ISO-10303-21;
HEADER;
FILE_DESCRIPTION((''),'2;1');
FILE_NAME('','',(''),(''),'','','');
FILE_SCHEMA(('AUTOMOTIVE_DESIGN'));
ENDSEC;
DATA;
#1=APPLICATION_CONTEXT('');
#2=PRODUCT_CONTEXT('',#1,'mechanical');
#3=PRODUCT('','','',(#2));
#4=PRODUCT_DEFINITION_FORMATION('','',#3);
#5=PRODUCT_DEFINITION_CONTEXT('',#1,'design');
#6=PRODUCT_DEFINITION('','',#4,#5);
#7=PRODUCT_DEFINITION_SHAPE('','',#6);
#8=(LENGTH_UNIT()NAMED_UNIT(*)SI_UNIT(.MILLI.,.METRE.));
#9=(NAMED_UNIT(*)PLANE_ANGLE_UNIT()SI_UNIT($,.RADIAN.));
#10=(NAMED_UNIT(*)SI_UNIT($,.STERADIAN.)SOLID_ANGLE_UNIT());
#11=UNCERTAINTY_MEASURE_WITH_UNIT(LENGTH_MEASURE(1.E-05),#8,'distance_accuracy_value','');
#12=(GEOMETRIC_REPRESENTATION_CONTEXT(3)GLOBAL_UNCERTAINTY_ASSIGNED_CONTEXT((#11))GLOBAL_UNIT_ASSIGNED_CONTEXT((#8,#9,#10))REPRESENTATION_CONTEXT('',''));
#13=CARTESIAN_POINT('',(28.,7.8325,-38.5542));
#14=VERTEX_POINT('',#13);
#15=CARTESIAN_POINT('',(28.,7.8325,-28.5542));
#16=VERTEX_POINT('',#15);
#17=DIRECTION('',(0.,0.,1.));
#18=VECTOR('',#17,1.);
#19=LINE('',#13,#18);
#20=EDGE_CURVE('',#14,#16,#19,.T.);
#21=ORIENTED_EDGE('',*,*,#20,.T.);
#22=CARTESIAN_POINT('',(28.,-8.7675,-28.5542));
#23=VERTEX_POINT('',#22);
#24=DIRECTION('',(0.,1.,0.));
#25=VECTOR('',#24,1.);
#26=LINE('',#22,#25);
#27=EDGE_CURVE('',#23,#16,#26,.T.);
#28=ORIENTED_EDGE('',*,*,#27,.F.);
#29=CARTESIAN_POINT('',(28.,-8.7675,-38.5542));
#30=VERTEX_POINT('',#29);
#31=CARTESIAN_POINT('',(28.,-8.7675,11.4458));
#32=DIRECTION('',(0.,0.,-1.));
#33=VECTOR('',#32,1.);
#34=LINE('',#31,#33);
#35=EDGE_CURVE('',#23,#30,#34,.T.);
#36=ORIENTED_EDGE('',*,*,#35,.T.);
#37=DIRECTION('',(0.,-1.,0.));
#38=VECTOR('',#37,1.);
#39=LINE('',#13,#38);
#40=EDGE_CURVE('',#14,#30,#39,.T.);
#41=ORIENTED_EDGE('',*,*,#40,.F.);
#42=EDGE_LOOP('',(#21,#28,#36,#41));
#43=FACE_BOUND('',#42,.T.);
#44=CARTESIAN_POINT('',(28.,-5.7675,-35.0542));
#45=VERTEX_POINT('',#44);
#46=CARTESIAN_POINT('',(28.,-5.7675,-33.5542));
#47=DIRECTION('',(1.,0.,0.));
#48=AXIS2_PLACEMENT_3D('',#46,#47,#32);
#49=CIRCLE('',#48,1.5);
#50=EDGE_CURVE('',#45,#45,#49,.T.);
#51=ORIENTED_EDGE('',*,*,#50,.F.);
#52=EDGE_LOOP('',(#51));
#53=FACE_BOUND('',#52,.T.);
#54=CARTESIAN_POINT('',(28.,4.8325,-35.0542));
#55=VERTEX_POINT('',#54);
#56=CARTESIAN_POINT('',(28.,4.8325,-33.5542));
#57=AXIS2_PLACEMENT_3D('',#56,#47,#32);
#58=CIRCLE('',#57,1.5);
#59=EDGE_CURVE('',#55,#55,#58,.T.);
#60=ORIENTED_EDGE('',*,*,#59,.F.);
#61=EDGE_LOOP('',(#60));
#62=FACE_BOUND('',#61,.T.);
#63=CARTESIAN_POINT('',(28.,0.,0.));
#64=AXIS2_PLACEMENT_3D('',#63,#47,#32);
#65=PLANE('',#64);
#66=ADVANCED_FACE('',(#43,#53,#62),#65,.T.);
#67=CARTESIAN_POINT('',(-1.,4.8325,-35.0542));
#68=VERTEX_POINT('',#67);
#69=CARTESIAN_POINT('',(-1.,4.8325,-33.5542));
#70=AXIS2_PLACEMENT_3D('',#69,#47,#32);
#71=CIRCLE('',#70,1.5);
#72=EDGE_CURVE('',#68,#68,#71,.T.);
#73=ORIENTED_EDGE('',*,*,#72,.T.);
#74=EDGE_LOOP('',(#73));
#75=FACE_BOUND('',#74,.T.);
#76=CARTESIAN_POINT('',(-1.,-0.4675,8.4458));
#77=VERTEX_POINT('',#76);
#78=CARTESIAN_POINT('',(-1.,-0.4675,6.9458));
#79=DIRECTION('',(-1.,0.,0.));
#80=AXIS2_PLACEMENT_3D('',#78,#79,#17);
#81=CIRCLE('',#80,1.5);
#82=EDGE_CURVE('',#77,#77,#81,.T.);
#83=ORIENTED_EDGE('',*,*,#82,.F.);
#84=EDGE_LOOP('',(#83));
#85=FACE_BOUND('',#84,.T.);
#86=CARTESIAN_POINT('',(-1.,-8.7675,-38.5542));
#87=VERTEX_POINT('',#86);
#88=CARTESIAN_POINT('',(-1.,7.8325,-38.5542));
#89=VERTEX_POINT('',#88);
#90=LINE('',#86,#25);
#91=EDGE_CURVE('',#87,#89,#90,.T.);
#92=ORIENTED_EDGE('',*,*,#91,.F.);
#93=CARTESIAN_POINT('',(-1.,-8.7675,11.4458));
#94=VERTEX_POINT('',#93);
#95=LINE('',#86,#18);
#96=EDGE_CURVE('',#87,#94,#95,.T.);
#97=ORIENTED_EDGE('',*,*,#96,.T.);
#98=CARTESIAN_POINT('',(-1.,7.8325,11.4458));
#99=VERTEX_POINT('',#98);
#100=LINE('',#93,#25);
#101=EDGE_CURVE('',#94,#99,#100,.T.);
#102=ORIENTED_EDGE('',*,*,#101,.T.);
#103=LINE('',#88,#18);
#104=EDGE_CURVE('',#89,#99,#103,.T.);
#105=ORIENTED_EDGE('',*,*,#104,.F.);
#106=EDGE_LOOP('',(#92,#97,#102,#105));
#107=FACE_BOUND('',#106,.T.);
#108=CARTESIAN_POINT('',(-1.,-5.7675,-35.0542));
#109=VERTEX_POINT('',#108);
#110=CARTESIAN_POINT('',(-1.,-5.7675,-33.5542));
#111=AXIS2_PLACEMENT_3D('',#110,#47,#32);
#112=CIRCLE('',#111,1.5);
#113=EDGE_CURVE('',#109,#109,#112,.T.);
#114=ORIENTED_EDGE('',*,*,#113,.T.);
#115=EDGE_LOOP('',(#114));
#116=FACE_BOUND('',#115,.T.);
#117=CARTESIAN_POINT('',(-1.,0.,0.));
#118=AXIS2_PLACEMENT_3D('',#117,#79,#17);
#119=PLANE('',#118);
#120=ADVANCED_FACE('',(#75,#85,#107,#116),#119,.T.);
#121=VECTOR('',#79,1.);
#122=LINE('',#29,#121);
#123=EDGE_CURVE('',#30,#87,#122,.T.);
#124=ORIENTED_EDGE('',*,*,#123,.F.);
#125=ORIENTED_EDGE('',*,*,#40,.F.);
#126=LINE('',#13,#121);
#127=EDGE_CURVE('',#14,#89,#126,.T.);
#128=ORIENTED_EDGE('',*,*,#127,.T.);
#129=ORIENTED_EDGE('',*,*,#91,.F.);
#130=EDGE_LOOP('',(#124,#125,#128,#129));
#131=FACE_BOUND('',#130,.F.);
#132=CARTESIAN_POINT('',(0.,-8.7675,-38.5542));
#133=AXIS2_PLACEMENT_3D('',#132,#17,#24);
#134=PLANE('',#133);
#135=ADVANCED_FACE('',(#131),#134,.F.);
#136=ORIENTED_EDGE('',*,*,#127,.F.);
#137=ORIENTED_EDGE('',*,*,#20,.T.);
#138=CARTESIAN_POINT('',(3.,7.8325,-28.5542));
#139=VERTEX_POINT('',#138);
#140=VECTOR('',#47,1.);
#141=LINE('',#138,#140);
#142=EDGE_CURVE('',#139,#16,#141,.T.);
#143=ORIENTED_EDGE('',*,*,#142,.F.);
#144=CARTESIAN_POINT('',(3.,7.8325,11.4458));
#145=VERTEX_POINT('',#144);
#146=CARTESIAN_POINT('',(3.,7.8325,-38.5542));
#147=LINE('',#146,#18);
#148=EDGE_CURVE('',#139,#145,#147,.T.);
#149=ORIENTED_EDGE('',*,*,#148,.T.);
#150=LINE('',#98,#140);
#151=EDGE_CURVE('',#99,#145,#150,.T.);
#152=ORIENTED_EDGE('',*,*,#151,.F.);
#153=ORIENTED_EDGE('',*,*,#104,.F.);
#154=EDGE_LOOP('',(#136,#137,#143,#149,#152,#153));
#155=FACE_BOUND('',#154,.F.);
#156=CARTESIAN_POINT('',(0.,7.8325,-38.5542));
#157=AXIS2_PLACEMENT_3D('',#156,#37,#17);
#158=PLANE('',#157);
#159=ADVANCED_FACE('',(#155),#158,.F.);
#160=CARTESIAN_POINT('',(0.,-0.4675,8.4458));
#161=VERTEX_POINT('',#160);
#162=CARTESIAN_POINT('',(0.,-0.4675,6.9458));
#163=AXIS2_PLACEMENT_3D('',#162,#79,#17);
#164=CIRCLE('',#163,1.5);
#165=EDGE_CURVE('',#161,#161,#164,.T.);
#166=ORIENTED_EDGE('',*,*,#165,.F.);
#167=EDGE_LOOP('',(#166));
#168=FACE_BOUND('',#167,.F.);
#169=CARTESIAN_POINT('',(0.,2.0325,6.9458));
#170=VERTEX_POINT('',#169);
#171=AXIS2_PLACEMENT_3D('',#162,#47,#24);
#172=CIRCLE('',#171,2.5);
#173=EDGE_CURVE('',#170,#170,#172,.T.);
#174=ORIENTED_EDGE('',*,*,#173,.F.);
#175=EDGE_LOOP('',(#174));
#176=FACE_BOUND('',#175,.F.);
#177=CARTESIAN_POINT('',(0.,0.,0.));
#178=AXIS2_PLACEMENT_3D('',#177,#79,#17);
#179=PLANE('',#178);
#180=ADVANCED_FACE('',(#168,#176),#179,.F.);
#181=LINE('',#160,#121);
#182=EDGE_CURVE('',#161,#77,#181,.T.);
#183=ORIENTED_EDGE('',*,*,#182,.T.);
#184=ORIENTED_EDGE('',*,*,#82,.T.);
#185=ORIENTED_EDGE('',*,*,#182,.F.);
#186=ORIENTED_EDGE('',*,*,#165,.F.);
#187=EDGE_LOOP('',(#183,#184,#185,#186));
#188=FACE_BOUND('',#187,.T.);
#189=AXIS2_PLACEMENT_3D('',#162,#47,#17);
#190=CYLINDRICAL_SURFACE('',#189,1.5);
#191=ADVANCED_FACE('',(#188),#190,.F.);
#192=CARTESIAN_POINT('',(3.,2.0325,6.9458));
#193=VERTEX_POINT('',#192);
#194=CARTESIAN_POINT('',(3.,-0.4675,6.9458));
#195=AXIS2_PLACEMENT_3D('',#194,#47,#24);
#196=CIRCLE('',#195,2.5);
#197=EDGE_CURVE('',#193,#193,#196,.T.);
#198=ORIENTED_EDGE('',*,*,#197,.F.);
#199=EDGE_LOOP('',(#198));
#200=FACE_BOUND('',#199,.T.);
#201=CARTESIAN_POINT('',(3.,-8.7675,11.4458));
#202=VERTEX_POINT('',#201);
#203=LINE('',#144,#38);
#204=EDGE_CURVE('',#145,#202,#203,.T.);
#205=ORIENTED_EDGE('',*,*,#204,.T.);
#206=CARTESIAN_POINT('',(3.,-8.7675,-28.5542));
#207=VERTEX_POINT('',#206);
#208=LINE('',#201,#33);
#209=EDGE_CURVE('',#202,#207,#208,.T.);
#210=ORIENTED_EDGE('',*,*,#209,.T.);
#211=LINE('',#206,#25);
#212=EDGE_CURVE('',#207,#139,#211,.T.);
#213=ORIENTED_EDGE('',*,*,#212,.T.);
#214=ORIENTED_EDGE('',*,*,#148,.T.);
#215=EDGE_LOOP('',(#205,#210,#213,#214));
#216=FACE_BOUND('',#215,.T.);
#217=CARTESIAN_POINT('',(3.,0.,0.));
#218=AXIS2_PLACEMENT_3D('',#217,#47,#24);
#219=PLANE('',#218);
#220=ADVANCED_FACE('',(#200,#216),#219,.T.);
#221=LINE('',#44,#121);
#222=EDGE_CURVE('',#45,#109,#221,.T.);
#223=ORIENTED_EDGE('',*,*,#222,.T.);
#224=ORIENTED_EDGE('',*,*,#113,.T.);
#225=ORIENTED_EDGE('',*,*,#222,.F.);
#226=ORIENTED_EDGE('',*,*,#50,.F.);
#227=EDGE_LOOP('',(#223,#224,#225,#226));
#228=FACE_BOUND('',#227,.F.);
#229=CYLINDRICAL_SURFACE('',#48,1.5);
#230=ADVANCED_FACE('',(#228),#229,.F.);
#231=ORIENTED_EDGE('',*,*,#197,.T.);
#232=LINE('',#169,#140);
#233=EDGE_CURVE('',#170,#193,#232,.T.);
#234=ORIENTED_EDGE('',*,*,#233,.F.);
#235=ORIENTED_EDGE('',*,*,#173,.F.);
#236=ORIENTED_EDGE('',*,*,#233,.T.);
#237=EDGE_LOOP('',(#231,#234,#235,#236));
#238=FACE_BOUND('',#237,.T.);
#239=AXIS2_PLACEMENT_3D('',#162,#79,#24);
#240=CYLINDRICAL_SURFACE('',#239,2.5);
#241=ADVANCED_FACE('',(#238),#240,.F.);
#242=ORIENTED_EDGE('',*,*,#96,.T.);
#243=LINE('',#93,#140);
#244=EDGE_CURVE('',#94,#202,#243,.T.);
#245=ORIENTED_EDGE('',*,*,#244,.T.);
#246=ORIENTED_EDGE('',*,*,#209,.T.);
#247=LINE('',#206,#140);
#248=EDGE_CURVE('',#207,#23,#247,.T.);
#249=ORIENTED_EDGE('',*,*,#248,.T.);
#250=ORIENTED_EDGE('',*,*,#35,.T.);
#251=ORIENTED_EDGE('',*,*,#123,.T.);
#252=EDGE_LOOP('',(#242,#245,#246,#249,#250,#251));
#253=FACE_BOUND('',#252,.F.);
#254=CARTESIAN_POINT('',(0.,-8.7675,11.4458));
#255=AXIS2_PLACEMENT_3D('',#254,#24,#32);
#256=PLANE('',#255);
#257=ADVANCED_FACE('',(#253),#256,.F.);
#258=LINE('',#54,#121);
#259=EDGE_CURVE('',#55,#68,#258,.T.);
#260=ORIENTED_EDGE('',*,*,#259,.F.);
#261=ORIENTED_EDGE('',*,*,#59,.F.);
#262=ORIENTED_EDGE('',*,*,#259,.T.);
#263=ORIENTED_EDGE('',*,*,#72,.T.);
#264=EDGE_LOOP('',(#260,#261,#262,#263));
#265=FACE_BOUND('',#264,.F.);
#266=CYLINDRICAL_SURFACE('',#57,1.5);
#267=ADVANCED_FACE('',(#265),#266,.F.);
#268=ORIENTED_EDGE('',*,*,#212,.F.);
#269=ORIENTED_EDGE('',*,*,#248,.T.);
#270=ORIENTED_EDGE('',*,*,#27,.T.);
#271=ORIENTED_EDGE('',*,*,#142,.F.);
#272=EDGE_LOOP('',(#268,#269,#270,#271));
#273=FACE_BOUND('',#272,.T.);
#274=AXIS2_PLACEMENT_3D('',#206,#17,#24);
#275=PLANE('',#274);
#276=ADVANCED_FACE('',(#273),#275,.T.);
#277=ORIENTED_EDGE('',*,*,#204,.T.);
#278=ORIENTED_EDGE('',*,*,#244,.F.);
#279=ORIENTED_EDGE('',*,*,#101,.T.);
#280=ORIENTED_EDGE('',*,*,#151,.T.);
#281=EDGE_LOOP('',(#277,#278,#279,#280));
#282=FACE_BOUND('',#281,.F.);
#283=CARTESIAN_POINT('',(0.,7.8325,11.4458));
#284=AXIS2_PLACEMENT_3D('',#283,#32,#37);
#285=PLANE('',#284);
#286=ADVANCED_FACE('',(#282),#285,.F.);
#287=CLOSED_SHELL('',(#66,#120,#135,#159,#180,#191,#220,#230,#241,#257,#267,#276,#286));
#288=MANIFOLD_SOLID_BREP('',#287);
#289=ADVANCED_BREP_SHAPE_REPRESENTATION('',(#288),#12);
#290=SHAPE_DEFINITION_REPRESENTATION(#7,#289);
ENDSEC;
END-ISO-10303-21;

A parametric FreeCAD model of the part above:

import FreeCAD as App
import Part
import Sketcher
from FreeCAD import Vector
Q = App.Units.Quantity


def add_polygon(sketch, points):
    """Adds a closed chain of lines whose ends are joined by coincident constraints."""
    first, n = sketch.GeometryCount, len(points)
    for a, b in zip(points, points[1:] + points[:1]):
        sketch.addGeometry(Part.LineSegment(App.Vector(*a, 0), App.Vector(*b, 0)), False)
    for i in range(n):
        sketch.addConstraint(Sketcher.Constraint("Coincident", first + i, 2, first + (i + 1) % n, 1))

doc = App.newDocument("Part")
body = doc.addObject("PartDesign::Body", "Body")

sketch1 = doc.addObject("Sketcher::SketchObject", "Sketch")
body.addObject(sketch1)
sketch1.AttachmentSupport = (doc.YZ_Plane, [""])
sketch1.MapMode = "FlatFace"
add_polygon(sketch1, [(7.8, -38.6), (7.8, 11.4), (-8.8, 11.4), (-8.8, -38.6)])
sketch1.addGeometry(Part.Circle(Vector(-0.5, 6.9, 0), Vector(0, 0, 1), 2.5), False)
sketch1.addConstraint(Sketcher.Constraint("Vertical", 0))
sketch1.addConstraint(Sketcher.Constraint("Horizontal", 1))
sketch1.addConstraint(Sketcher.Constraint("Vertical", 2))
sketch1.addConstraint(Sketcher.Constraint("Horizontal", 3))
sketch1.addConstraint(Sketcher.Constraint("Diameter", 4, Q("5 mm")))
sketch1.addConstraint(Sketcher.Constraint("DistanceY", 0, 1, 0, 2, Q("50 mm")))
sketch1.addConstraint(Sketcher.Constraint("DistanceX", 1, 2, 1, 1, Q("16.6 mm")))
sketch1.addConstraint(Sketcher.Constraint("DistanceX", 4, 3, 0, 2, Q("8.3 mm")))
sketch1.addConstraint(Sketcher.Constraint("DistanceY", 4, 3, 0, 2, Q("4.5 mm")))
sketch1.addConstraint(Sketcher.Constraint("DistanceX", 4, 3, -1, 1, Q("0.4675 mm")))
sketch1.addConstraint(Sketcher.Constraint("DistanceY", -1, 1, 4, 3, Q("6.9458 mm")))
pad1 = doc.addObject("PartDesign::Pad", "Pad")
body.addObject(pad1)
pad1.Profile = sketch1
pad1.Length = 3

sketch2 = doc.addObject("Sketcher::SketchObject", "Sketch001")
body.addObject(sketch2)
sketch2.AttachmentSupport = (doc.YZ_Plane, [""])
sketch2.MapMode = "FlatFace"
sketch2.AttachmentOffset = App.Placement(Vector(0, 0, 3), App.Rotation())
add_polygon(sketch2, [(8, -29), (-9, -29), (-9, -39), (8, -39)])
sketch2.addConstraint(Sketcher.Constraint("Horizontal", 0))
sketch2.addConstraint(Sketcher.Constraint("Vertical", 1))
sketch2.addConstraint(Sketcher.Constraint("Horizontal", 2))
sketch2.addConstraint(Sketcher.Constraint("Vertical", 3))
sketch2.addConstraint(Sketcher.Constraint("DistanceY", 1, 2, 1, 1, Q("10 mm")))
sketch2.addConstraint(Sketcher.Constraint("DistanceX", 0, 2, 0, 1, Q("16.6 mm")))
sketch2.addConstraint(Sketcher.Constraint("DistanceX", 0, 2, -1, 1, Q("8.7675 mm")))
sketch2.addConstraint(Sketcher.Constraint("DistanceY", 0, 2, -1, 1, Q("28.5542 mm")))
pad2 = doc.addObject("PartDesign::Pad", "Pad001")
body.addObject(pad2)
pad2.Profile = sketch2
pad2.Length = 25

sketch3 = doc.addObject("Sketcher::SketchObject", "Sketch002")
body.addObject(sketch3)
sketch3.AttachmentSupport = (doc.YZ_Plane, [""])
sketch3.MapMode = "FlatFace"
add_polygon(sketch3, [(7.8, 11.4), (7.8, -38.6), (-8.8, -38.6), (-8.8, 11.4)])
sketch3.addGeometry(Part.Circle(Vector(-0.5, 6.9, 0), Vector(0, 0, 1), 1.5), False)
sketch3.addConstraint(Sketcher.Constraint("Vertical", 0))
sketch3.addConstraint(Sketcher.Constraint("Horizontal", 1))
sketch3.addConstraint(Sketcher.Constraint("Vertical", 2))
sketch3.addConstraint(Sketcher.Constraint("Horizontal", 3))
sketch3.addConstraint(Sketcher.Constraint("Diameter", 4, Q("3 mm")))
sketch3.addConstraint(Sketcher.Constraint("DistanceY", 0, 2, 0, 1, Q("50 mm")))
sketch3.addConstraint(Sketcher.Constraint("DistanceX", 1, 2, 1, 1, Q("16.6 mm")))
sketch3.addConstraint(Sketcher.Constraint("DistanceX", 4, 3, 0, 2, Q("8.3 mm")))
sketch3.addConstraint(Sketcher.Constraint("DistanceY", 0, 2, 4, 3, Q("45.5 mm")))
sketch3.addConstraint(Sketcher.Constraint("DistanceX", 4, 3, -1, 1, Q("0.4675 mm")))
sketch3.addConstraint(Sketcher.Constraint("DistanceY", -1, 1, 4, 3, Q("6.9458 mm")))
pad3 = doc.addObject("PartDesign::Pad", "Pad002")
body.addObject(pad3)
pad3.Profile = sketch3
pad3.Length = 1
pad3.Reversed = True

sketch4 = doc.addObject("Sketcher::SketchObject", "Sketch003")
body.addObject(sketch4)
sketch4.AttachmentSupport = (doc.YZ_Plane, [""])
sketch4.MapMode = "FlatFace"
sketch4.AttachmentOffset = App.Placement(Vector(0, 0, 28), App.Rotation())
sketch4.addGeometry(Part.Circle(Vector(-5.8, -33.6, 0), Vector(0, 0, 1), 1.5), False)
sketch4.addGeometry(Part.Circle(Vector(4.8, -33.6, 0), Vector(0, 0, 1), 1.5), False)
sketch4.addConstraint(Sketcher.Constraint("Equal", 0, 1))
sketch4.addConstraint(Sketcher.Constraint("Horizontal", 0, 3, 1, 3))
sketch4.addConstraint(Sketcher.Constraint("Diameter", 0, Q("3 mm")))
sketch4.addConstraint(Sketcher.Constraint("DistanceX", 0, 3, 1, 3, Q("10.6 mm")))
sketch4.addConstraint(Sketcher.Constraint("DistanceX", 0, 3, -1, 1, Q("5.7675 mm")))
sketch4.addConstraint(Sketcher.Constraint("DistanceY", 0, 3, -1, 1, Q("33.5542 mm")))
pocket1 = doc.addObject("PartDesign::Pocket", "Pocket")
body.addObject(pocket1)
pocket1.Profile = sketch4
pocket1.Length = 100

doc.recompute()
